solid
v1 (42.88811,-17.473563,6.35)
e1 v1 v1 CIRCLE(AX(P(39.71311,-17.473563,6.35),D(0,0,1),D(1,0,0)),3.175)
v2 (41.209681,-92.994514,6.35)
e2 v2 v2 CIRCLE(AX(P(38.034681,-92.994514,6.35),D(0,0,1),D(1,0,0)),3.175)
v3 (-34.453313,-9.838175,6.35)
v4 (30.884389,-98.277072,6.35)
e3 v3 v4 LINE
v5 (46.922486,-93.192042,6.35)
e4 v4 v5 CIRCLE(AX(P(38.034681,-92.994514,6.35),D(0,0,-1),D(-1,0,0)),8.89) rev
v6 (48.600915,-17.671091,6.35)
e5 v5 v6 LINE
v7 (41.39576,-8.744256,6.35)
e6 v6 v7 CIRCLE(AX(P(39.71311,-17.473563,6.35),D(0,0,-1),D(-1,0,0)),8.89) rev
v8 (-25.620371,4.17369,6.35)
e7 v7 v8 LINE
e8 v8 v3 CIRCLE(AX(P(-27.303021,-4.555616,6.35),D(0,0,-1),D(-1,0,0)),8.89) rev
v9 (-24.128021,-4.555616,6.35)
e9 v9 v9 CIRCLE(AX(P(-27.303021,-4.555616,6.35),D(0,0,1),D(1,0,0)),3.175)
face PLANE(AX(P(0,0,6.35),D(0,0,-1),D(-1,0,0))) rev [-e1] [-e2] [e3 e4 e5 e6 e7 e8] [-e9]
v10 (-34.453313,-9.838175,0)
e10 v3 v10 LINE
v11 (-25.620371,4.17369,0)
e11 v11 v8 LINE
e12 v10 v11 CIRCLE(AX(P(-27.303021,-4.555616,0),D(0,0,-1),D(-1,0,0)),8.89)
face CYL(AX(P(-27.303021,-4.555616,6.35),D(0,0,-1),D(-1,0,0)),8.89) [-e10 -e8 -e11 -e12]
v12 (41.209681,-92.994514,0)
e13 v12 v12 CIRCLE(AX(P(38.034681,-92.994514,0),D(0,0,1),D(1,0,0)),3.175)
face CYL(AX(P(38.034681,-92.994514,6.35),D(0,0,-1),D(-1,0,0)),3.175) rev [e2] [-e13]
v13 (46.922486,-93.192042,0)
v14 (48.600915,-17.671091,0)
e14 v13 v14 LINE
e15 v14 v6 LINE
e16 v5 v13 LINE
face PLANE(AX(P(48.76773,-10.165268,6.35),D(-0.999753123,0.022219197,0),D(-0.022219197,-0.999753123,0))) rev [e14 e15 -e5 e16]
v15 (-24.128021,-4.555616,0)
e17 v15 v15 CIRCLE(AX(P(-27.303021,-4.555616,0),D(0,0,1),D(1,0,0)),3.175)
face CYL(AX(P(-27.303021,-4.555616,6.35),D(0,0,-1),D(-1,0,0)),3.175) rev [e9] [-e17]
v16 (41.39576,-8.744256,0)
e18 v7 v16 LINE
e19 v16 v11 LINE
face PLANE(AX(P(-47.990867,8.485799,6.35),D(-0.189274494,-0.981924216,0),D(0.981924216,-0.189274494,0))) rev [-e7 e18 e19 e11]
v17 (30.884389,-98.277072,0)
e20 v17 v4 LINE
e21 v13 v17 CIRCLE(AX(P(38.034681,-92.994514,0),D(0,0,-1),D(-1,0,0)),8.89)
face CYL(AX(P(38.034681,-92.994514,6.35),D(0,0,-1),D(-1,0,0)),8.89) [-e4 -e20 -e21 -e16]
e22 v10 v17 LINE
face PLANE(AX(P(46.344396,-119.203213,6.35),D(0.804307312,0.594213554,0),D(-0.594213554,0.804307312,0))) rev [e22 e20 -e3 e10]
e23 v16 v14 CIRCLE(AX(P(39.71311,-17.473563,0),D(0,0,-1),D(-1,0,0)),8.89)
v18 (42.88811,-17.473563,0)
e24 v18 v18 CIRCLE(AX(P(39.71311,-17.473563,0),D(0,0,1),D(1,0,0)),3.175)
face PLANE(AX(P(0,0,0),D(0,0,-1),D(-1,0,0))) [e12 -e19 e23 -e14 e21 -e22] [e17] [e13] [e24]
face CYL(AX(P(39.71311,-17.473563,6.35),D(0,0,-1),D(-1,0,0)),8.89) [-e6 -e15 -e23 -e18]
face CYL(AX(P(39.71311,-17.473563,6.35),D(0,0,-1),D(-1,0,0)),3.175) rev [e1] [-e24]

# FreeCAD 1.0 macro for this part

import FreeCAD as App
import Part
import Sketcher
from FreeCAD import Vector
Q = App.Units.Quantity


def edges_at(feature, points):
    """Names of the edges that pass closest to the given points."""
    edges = feature.Shape.Edges
    near = lambda p: min(range(len(edges)), key=lambda i: edges[i].distToShape(Part.Vertex(*p))[0])
    return sorted({f"Edge{near(p) + 1}" for p in points})


def add_polygon(sketch, points):
    """Adds a closed chain of lines whose ends are joined by coincident constraints."""
    first, n = sketch.GeometryCount, len(points)
    for a, b in zip(points, points[1:] + points[:1]):
        sketch.addGeometry(Part.LineSegment(App.Vector(*a, 0), App.Vector(*b, 0)), False)
    for i in range(n):
        sketch.addConstraint(Sketcher.Constraint("Coincident", first + i, 2, first + (i + 1) % n, 1))

doc = App.newDocument("Part")
body = doc.addObject("PartDesign::Body", "Body")

# Sketch on XY plane
sketch1 = body.newObject("Sketcher::SketchObject", "Sketch")
sketch1.AttachmentSupport = (doc.getObject("XY_Plane"), [""])
sketch1.MapMode = "FlatFace"
add_polygon(sketch1, [(48.76773, -10.165268), (-47.990867, 8.485799), (46.344396, -119.203213)])  # lines 0-2
sketch1.addGeometry(Part.Circle(Vector(38.034681, -92.994514, 0), Vector(0, 0, 1), 3.175), False)  # 3
sketch1.addGeometry(Part.Circle(Vector(39.71311, -17.473563, 0), Vector(0, 0, 1), 3.175), False)  # 4
sketch1.addGeometry(Part.Circle(Vector(-27.303021, -4.555616, 0), Vector(0, 0, 1), 3.175), False)  # 5
sketch1.addConstraint(Sketcher.Constraint("Equal", 3, 4))
sketch1.addConstraint(Sketcher.Constraint("Equal", 4, 5))
sketch1.addConstraint(Sketcher.Constraint("Diameter", 3, Q("0.25 in")))
sketch1.addConstraint(Sketcher.Constraint("Distance", 1, 158.756499))
sketch1.addConstraint(Sketcher.Constraint("DistanceY", -1, 1, 0, 2, 8.485799))
sketch1.addConstraint(Sketcher.Constraint("DistanceY", 1, 2, 3, 3, 26.2087))
sketch1.addConstraint(Sketcher.Constraint("Distance", 0, 98.539781))
sketch1.addConstraint(Sketcher.Constraint("Distance", 2, 109.064871))
sketch1.addConstraint(Sketcher.Constraint("DistanceX", -1, 1, 3, 3, 38.034681))
sketch1.addConstraint(Sketcher.Constraint("DistanceX", -1, 1, 4, 3, 39.71311))
sketch1.addConstraint(Sketcher.Constraint("DistanceX", 5, 3, -1, 1, 27.303021))
sketch1.addConstraint(Sketcher.Constraint("DistanceX", -1, 1, 2, 2, 48.76773))
sketch1.addConstraint(Sketcher.Constraint("DistanceY", 3, 3, 4, 3, 75.520951))
sketch1.addConstraint(Sketcher.Constraint("DistanceY", 4, 3, 0, 2, 25.959362))
sketch1.addConstraint(Sketcher.Constraint("DistanceY", 2, 2, 5, 3, 5.609652))
pad1 = body.newObject("PartDesign::Pad", "Pad")
pad1.Profile = sketch1
pad1.Length = Q("0.25 in")
doc.recompute()

fillet = body.newObject("PartDesign::Fillet", "Fillet")
fillet.Base = (pad1, edges_at(pad1, [(-47.991, 8.486, 3.175), (48.768, -10.165, 3.175), (46.344, -119.203, 3.175)]))
fillet.Radius = Q("0.35 in")

doc.recompute()
